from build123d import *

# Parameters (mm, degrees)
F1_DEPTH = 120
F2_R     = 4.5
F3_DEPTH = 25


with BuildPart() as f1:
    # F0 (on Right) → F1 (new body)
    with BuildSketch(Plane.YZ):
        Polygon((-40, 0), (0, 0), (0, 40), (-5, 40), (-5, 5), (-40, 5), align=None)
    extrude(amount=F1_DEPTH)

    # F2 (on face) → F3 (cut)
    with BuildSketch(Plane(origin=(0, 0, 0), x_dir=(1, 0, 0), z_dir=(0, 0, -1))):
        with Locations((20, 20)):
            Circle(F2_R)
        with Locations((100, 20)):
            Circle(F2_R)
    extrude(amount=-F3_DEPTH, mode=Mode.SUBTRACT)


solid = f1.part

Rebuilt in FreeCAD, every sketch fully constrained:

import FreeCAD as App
import Part
import Sketcher
from FreeCAD import Vector
Q = App.Units.Quantity

doc = App.newDocument("Part")
body = doc.addObject("PartDesign::Body", "Body")

# Sketch on YZ plane
sketch1 = body.newObject("Sketcher::SketchObject", "Sketch")
sketch1.AttachmentSupport = (doc.getObject("YZ_Plane"), [""])
sketch1.MapMode = "FlatFace"
sketch1.addGeometry([
    Part.LineSegment(Vector(-40, 0, 0), Vector(0, 0, 0)),  # 0
    Part.LineSegment(Vector(0, 0, 0), Vector(0, 40, 0)),  # 1
    Part.LineSegment(Vector(0, 40, 0), Vector(-5, 40, 0)),  # 2
    Part.LineSegment(Vector(-5, 40, 0), Vector(-5, 5, 0)),  # 3
    Part.LineSegment(Vector(-5, 5, 0), Vector(-40, 5, 0)),  # 4
    Part.LineSegment(Vector(-40, 5, 0), Vector(-40, 0, 0)),  # 5
], False)
sketch1.addConstraint([
    Sketcher.Constraint("Coincident", 0, 2, 1, 1),
    Sketcher.Constraint("Coincident", 1, 2, 2, 1),
    Sketcher.Constraint("Coincident", 2, 2, 3, 1),
    Sketcher.Constraint("Coincident", 3, 2, 4, 1),
    Sketcher.Constraint("Coincident", 4, 2, 5, 1),
    Sketcher.Constraint("Coincident", 5, 2, 0, 1),
    Sketcher.Constraint("Horizontal", 0),
    Sketcher.Constraint("Vertical", 1),
    Sketcher.Constraint("Horizontal", 2),
    Sketcher.Constraint("Vertical", 3),
    Sketcher.Constraint("Horizontal", 4),
    Sketcher.Constraint("Vertical", 5),
    Sketcher.Constraint("Coincident", 0, 2, -1, 1),
    Sketcher.Constraint("Equal", 0, 1),
    Sketcher.Constraint("Equal", 4, 3),
    Sketcher.Constraint("DistanceX", 0, 1, 0, 2, Q("40 mm")),
    Sketcher.Constraint("DistanceX", 2, 2, 2, 1, Q("5 mm")),
])
pad1 = body.newObject("PartDesign::Pad", "Pad")
pad1.Profile = sketch1
pad1.Length = 120

# Sketch on XY plane
sketch2 = body.newObject("Sketcher::SketchObject", "Sketch001")
sketch2.AttachmentSupport = (doc.getObject("XY_Plane"), [""])
sketch2.MapMode = "FlatFace"
sketch2.addGeometry([
    Part.Circle(Vector(20, -20, 0), Vector(0, 0, 1), 4.5),
    Part.Circle(Vector(100, -20, 0), Vector(0, 0, 1), 4.5),
], False)
sketch2.addConstraint([
    Sketcher.Constraint("Equal", 0, 1),
    Sketcher.Constraint("Horizontal", 0, 3, 1, 3),
    Sketcher.Constraint("Diameter", 0, Q("9 mm")),
    Sketcher.Constraint("DistanceX", -1, 1, 0, 3, Q("20 mm")),
    Sketcher.Constraint("DistanceY", 0, 3, -1, 1, Q("20 mm")),
    Sketcher.Constraint("DistanceX", -1, 1, 1, 3, Q("100 mm")),
])
pocket1 = body.newObject("PartDesign::Pocket", "Pocket")
pocket1.Profile = sketch2
pocket1.Length = 25
pocket1.Reversed = True

doc.recompute()
